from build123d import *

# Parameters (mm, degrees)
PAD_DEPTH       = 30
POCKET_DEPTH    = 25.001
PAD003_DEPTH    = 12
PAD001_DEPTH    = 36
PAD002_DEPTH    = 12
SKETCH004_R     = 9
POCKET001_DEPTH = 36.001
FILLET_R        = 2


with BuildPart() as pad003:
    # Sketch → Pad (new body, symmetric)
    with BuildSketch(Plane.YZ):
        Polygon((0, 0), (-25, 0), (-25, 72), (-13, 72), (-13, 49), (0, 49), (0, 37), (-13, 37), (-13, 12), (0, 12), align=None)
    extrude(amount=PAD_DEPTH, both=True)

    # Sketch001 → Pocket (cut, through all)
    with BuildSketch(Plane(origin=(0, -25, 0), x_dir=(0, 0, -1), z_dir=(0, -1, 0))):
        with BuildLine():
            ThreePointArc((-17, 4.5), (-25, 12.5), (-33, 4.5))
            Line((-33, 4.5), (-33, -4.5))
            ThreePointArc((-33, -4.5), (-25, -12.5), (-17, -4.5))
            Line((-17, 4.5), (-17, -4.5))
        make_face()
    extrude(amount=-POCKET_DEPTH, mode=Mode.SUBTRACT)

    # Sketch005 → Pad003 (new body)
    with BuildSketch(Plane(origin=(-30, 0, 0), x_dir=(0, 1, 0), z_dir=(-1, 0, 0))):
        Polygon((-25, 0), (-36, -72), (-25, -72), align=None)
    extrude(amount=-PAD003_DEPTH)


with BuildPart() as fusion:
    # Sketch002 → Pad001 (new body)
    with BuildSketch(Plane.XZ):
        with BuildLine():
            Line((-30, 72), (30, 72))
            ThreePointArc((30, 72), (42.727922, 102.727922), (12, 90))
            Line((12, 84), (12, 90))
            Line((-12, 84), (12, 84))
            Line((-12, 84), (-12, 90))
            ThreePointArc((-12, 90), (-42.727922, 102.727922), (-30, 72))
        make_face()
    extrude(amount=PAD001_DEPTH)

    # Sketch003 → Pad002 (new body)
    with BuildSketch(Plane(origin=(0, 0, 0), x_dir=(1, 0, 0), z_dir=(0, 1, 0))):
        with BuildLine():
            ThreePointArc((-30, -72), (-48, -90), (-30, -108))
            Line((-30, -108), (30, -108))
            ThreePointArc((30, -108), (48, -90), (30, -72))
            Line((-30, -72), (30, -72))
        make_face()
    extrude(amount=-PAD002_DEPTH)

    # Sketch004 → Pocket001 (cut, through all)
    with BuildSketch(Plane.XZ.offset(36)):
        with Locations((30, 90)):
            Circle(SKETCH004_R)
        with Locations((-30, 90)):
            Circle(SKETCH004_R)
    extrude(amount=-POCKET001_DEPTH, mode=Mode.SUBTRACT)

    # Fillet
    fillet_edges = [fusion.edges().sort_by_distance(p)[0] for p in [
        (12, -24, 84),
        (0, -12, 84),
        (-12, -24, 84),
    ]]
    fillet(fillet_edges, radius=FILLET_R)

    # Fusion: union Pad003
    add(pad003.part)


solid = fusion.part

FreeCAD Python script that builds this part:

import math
import FreeCAD as App
import Part
import Sketcher

V = App.Vector
Q = App.Units.Quantity


def edges_at(feature, points):
    """Names of the edges that pass closest to the given points."""
    edges = feature.Shape.Edges
    near = lambda p: min(range(len(edges)), key=lambda i: edges[i].distToShape(Part.Vertex(*p))[0])
    return sorted({f"Edge{near(p) + 1}" for p in points})

doc = App.newDocument("Part")
body = doc.addObject("PartDesign::Body", "Body")

# Sketch on YZ plane
sketch1 = body.newObject("Sketcher::SketchObject", "Sketch")
sketch1.AttachmentSupport = (doc.getObject("YZ_Plane"), [""])
sketch1.MapMode = "FlatFace"
sketch1.addGeometry(Part.LineSegment(V(-25, 0, 0), V(0, 0, 0)), False)
sketch1.addGeometry(Part.LineSegment(V(0, 0, 0), V(0, 12, 0)), False)
sketch1.addGeometry(Part.LineSegment(V(0, 12, 0), V(-13, 12, 0)), False)
sketch1.addGeometry(Part.LineSegment(V(-13, 12, 0), V(-13, 37, 0)), False)
sketch1.addGeometry(Part.LineSegment(V(-13, 37, 0), V(0, 37, 0)), False)
sketch1.addGeometry(Part.LineSegment(V(0, 37, 0), V(0, 49, 0)), False)
sketch1.addGeometry(Part.LineSegment(V(0, 49, 0), V(-13, 49, 0)), False)
sketch1.addGeometry(Part.LineSegment(V(-13, 49, 0), V(-13, 72, 0)), False)
sketch1.addGeometry(Part.LineSegment(V(-13, 72, 0), V(-25, 72, 0)), False)
sketch1.addGeometry(Part.LineSegment(V(-25, 72, 0), V(-25, 0, 0)), False)
sketch1.addConstraint(Sketcher.Constraint("Coincident", 0, 2, 1, 1))
sketch1.addConstraint(Sketcher.Constraint("Coincident", 1, 2, 2, 1))
sketch1.addConstraint(Sketcher.Constraint("Coincident", 2, 2, 3, 1))
sketch1.addConstraint(Sketcher.Constraint("Coincident", 3, 2, 4, 1))
sketch1.addConstraint(Sketcher.Constraint("Coincident", 4, 2, 5, 1))
sketch1.addConstraint(Sketcher.Constraint("Coincident", 5, 2, 6, 1))
sketch1.addConstraint(Sketcher.Constraint("Coincident", 6, 2, 7, 1))
sketch1.addConstraint(Sketcher.Constraint("Coincident", 7, 2, 8, 1))
sketch1.addConstraint(Sketcher.Constraint("Coincident", 8, 2, 9, 1))
sketch1.addConstraint(Sketcher.Constraint("Coincident", 9, 2, 0, 1))
sketch1.addConstraint(Sketcher.Constraint("Horizontal", 0))
sketch1.addConstraint(Sketcher.Constraint("Vertical", 1))
sketch1.addConstraint(Sketcher.Constraint("Horizontal", 2))
sketch1.addConstraint(Sketcher.Constraint("Vertical", 3))
sketch1.addConstraint(Sketcher.Constraint("Horizontal", 4))
sketch1.addConstraint(Sketcher.Constraint("Vertical", 5))
sketch1.addConstraint(Sketcher.Constraint("Horizontal", 6))
sketch1.addConstraint(Sketcher.Constraint("Vertical", 7))
sketch1.addConstraint(Sketcher.Constraint("Horizontal", 8))
sketch1.addConstraint(Sketcher.Constraint("Vertical", 9))
sketch1.addConstraint(Sketcher.Constraint("Coincident", 0, 2, -1, 1))
sketch1.addConstraint(Sketcher.Constraint("PointOnObject", 4, 2, -2))
sketch1.addConstraint(Sketcher.Constraint("Vertical", 3, 2, 6, 2))
sketch1.addConstraint(Sketcher.Constraint("Equal", 8, 1))
sketch1.addConstraint(Sketcher.Constraint("Equal", 0, 3))
sketch1.addConstraint(Sketcher.Constraint("Equal", 1, 5))
sketch1.addConstraint(Sketcher.Constraint("DistanceX", 0, 1, 0, 2, Q("25 mm")))
sketch1.addConstraint(Sketcher.Constraint("DistanceX", 2, 2, 2, 1, Q("13 mm")))
sketch1.addConstraint(Sketcher.Constraint("DistanceY", 7, 1, 7, 2, Q("23 mm")))
pad1 = body.newObject("PartDesign::Pad", "Pad")
pad1.Profile = sketch1
pad1.Length = 60
pad1.Midplane = True

# Sketch on XZ plane
sketch2 = body.newObject("Sketcher::SketchObject", "Sketch001")
sketch2.AttachmentSupport = (doc.getObject("XZ_Plane"), [""])
sketch2.MapMode = "FlatFace"
sketch2.AttachmentOffset = App.Placement(V(0, 0, 25), App.Rotation())
sketch2.addGeometry(Part.ArcOfCircle(Part.Circle(V(4, 25, 0), V(0, 0, 1), 8), math.radians(-90), math.radians(90)), False)
sketch2.addGeometry(Part.LineSegment(V(4, 33, 0), V(-4, 33, 0)), False)
sketch2.addGeometry(Part.ArcOfCircle(Part.Circle(V(-4, 25, 0), V(0, 0, 1), 8), math.radians(90), math.radians(270)), False)
sketch2.addGeometry(Part.LineSegment(V(-4, 17, 0), V(4, 17, 0)), False)
sketch2.addConstraint(Sketcher.Constraint("Tangent", 0, 2, 1, 1))
sketch2.addConstraint(Sketcher.Constraint("Tangent", 1, 2, 2, 1))
sketch2.addConstraint(Sketcher.Constraint("Tangent", 2, 2, 3, 1))
sketch2.addConstraint(Sketcher.Constraint("Tangent", 3, 2, 0, 1))
sketch2.addConstraint(Sketcher.Constraint("Horizontal", 1))
sketch2.addConstraint(Sketcher.Constraint("Horizontal", 3))
sketch2.addConstraint(Sketcher.Constraint("Radius", 0, Q("8 mm")))
sketch2.addConstraint(Sketcher.Constraint("DistanceX", 1, 2, 1, 1, Q("9 mm")))
sketch2.addConstraint(Sketcher.Constraint("DistanceY", -1, 1, 0, 3, Q("25 mm")))
sketch2.addConstraint(Sketcher.Constraint("DistanceX", -1, 1, 0, 3, Q("4.5 mm")))
pocket1 = body.newObject("PartDesign::Pocket", "Pocket")
pocket1.Profile = sketch2
pocket1.Type = "ThroughAll"

# Sketch on YZ plane
sketch3 = body.newObject("Sketcher::SketchObject", "Sketch002")
sketch3.AttachmentSupport = (doc.getObject("YZ_Plane"), [""])
sketch3.MapMode = "FlatFace"
sketch3.AttachmentOffset = App.Placement(V(0, 0, -30), App.Rotation())
sketch3.addGeometry(Part.LineSegment(V(-25, 0, 0), V(-36, 72, 0)), False)
sketch3.addGeometry(Part.LineSegment(V(-36, 72, 0), V(-25, 72, 0)), False)
sketch3.addGeometry(Part.LineSegment(V(-25, 72, 0), V(-25, 0, 0)), False)
sketch3.addConstraint(Sketcher.Constraint("Coincident", 0, 2, 1, 1))
sketch3.addConstraint(Sketcher.Constraint("Coincident", 1, 2, 2, 1))
sketch3.addConstraint(Sketcher.Constraint("Coincident", 2, 2, 0, 1))
sketch3.addConstraint(Sketcher.Constraint("Horizontal", 1))
sketch3.addConstraint(Sketcher.Constraint("Vertical", 2))
sketch3.addConstraint(Sketcher.Constraint("PointOnObject", 2, 2, -1))
sketch3.addConstraint(Sketcher.Constraint("DistanceX", 1, 1, 1, 2, Q("11 mm")))
sketch3.addConstraint(Sketcher.Constraint("DistanceY", 2, 2, 2, 1, Q("72 mm")))
sketch3.addConstraint(Sketcher.Constraint("DistanceX", 0, 2, -1, 1, Q("36 mm")))
pad2 = body.newObject("PartDesign::Pad", "Pad001")
pad2.Profile = sketch3
pad2.Length = 12
body2 = doc.addObject("PartDesign::Body", "Body001")

# Sketch on XZ plane
sketch4 = body2.newObject("Sketcher::SketchObject", "Sketch003")
sketch4.AttachmentSupport = (doc.getObject("XZ_Plane001"), [""])
sketch4.MapMode = "FlatFace"
sketch4.addGeometry(Part.LineSegment(V(-30, 72, 0), V(30, 72, 0)), False)
sketch4.addGeometry(Part.ArcOfCircle(Part.Circle(V(30, 90, 0), V(0, 0, 1), 18), math.radians(-90), math.radians(180)), False)
sketch4.addGeometry(Part.LineSegment(V(12, 90, 0), V(12, 84, 0)), False)
sketch4.addGeometry(Part.LineSegment(V(12, 84, 0), V(-12, 84, 0)), False)
sketch4.addGeometry(Part.LineSegment(V(-12, 84, 0), V(-12, 90, 0)), False)
sketch4.addGeometry(Part.ArcOfCircle(Part.Circle(V(-30, 90, 0), V(0, 0, 1), 18), math.radians(0), math.radians(270)), False)
sketch4.addConstraint(Sketcher.Constraint("Tangent", 0, 2, 1, 1))
sketch4.addConstraint(Sketcher.Constraint("Tangent", 1, 2, 2, 1))
sketch4.addConstraint(Sketcher.Constraint("Coincident", 2, 2, 3, 1))
sketch4.addConstraint(Sketcher.Constraint("Coincident", 3, 2, 4, 1))
sketch4.addConstraint(Sketcher.Constraint("Tangent", 4, 2, 5, 1))
sketch4.addConstraint(Sketcher.Constraint("Tangent", 5, 2, 0, 1))
sketch4.addConstraint(Sketcher.Constraint("Horizontal", 0))
sketch4.addConstraint(Sketcher.Constraint("Vertical", 2))
sketch4.addConstraint(Sketcher.Constraint("Horizontal", 3))
sketch4.addConstraint(Sketcher.Constraint("Vertical", 4))
sketch4.addConstraint(Sketcher.Constraint("Equal", 1, 5))
sketch4.addConstraint(Sketcher.Constraint("Radius", 1, Q("18 mm")))
sketch4.addConstraint(Sketcher.Constraint("DistanceX", 0, 1, 0, 2, Q("60 mm")))
sketch4.addConstraint(Sketcher.Constraint("DistanceY", 2, 2, 2, 1, Q("6 mm")))
sketch4.addConstraint(Sketcher.Constraint("DistanceX", -1, 1, 1, 3, Q("30 mm")))
sketch4.addConstraint(Sketcher.Constraint("DistanceY", -1, 1, 1, 3, Q("90 mm")))
pad3 = body2.newObject("PartDesign::Pad", "Pad002")
pad3.Profile = sketch4
pad3.Length = 36

# Sketch on XZ plane
sketch5 = body2.newObject("Sketcher::SketchObject", "Sketch004")
sketch5.AttachmentSupport = (doc.getObject("XZ_Plane001"), [""])
sketch5.MapMode = "FlatFace"
sketch5.addGeometry(Part.ArcOfCircle(Part.Circle(V(-30, 90, 0), V(0, 0, 1), 18), math.radians(90), math.radians(270)), False)
sketch5.addGeometry(Part.LineSegment(V(-30, 108, 0), V(30, 108, 0)), False)
sketch5.addGeometry(Part.ArcOfCircle(Part.Circle(V(30, 90, 0), V(0, 0, 1), 18), math.radians(-90), math.radians(90)), False)
sketch5.addGeometry(Part.LineSegment(V(30, 72, 0), V(-30, 72, 0)), False)
sketch5.addConstraint(Sketcher.Constraint("Tangent", 0, 1, 1, 1))
sketch5.addConstraint(Sketcher.Constraint("Tangent", 1, 2, 2, 2))
sketch5.addConstraint(Sketcher.Constraint("Tangent", 2, 1, 3, 1))
sketch5.addConstraint(Sketcher.Constraint("Tangent", 3, 2, 0, 2))
sketch5.addConstraint(Sketcher.Constraint("Horizontal", 1))
sketch5.addConstraint(Sketcher.Constraint("Horizontal", 3))
sketch5.addConstraint(Sketcher.Constraint("Radius", 0, Q("18 mm")))
sketch5.addConstraint(Sketcher.Constraint("DistanceX", 1, 1, 1, 2, Q("60 mm")))
sketch5.addConstraint(Sketcher.Constraint("DistanceX", 0, 3, -1, 1, Q("30 mm")))
sketch5.addConstraint(Sketcher.Constraint("DistanceY", -1, 1, 0, 3, Q("90 mm")))
pad4 = body2.newObject("PartDesign::Pad", "Pad003")
pad4.Profile = sketch5
pad4.Length = 12

# Sketch on XZ plane
sketch6 = body2.newObject("Sketcher::SketchObject", "Sketch005")
sketch6.AttachmentSupport = (doc.getObject("XZ_Plane001"), [""])
sketch6.MapMode = "FlatFace"
sketch6.AttachmentOffset = App.Placement(V(0, 0, 36), App.Rotation())
sketch6.addGeometry(Part.Circle(V(30, 90, 0), V(0, 0, 1), 9), False)
sketch6.addGeometry(Part.Circle(V(-30, 90, 0), V(0, 0, 1), 9), False)
sketch6.addConstraint(Sketcher.Constraint("Equal", 0, 1))
sketch6.addConstraint(Sketcher.Constraint("Symmetric", 0, 3, 1, 3, -2))
sketch6.addConstraint(Sketcher.Constraint("Diameter", 0, Q("18 mm")))
sketch6.addConstraint(Sketcher.Constraint("DistanceX", -1, 1, 0, 3, Q("30 mm")))
sketch6.addConstraint(Sketcher.Constraint("DistanceY", -1, 1, 0, 3, Q("90 mm")))
pocket2 = body2.newObject("PartDesign::Pocket", "Pocket001")
pocket2.Profile = sketch6
pocket2.Type = "ThroughAll"
doc.recompute()

fillet = body2.newObject("PartDesign::Fillet", "Fillet")
fillet.Base = (pocket2, edges_at(pocket2, [(12, -24, 84), (0, -12, 84), (-12, -24, 84)]))
fillet.Radius = 2
doc.recompute()

boolean = body2.newObject("PartDesign::Boolean", "Boolean")
boolean.Type = "Fuse"
boolean.addObjects([body])

doc.recompute()
